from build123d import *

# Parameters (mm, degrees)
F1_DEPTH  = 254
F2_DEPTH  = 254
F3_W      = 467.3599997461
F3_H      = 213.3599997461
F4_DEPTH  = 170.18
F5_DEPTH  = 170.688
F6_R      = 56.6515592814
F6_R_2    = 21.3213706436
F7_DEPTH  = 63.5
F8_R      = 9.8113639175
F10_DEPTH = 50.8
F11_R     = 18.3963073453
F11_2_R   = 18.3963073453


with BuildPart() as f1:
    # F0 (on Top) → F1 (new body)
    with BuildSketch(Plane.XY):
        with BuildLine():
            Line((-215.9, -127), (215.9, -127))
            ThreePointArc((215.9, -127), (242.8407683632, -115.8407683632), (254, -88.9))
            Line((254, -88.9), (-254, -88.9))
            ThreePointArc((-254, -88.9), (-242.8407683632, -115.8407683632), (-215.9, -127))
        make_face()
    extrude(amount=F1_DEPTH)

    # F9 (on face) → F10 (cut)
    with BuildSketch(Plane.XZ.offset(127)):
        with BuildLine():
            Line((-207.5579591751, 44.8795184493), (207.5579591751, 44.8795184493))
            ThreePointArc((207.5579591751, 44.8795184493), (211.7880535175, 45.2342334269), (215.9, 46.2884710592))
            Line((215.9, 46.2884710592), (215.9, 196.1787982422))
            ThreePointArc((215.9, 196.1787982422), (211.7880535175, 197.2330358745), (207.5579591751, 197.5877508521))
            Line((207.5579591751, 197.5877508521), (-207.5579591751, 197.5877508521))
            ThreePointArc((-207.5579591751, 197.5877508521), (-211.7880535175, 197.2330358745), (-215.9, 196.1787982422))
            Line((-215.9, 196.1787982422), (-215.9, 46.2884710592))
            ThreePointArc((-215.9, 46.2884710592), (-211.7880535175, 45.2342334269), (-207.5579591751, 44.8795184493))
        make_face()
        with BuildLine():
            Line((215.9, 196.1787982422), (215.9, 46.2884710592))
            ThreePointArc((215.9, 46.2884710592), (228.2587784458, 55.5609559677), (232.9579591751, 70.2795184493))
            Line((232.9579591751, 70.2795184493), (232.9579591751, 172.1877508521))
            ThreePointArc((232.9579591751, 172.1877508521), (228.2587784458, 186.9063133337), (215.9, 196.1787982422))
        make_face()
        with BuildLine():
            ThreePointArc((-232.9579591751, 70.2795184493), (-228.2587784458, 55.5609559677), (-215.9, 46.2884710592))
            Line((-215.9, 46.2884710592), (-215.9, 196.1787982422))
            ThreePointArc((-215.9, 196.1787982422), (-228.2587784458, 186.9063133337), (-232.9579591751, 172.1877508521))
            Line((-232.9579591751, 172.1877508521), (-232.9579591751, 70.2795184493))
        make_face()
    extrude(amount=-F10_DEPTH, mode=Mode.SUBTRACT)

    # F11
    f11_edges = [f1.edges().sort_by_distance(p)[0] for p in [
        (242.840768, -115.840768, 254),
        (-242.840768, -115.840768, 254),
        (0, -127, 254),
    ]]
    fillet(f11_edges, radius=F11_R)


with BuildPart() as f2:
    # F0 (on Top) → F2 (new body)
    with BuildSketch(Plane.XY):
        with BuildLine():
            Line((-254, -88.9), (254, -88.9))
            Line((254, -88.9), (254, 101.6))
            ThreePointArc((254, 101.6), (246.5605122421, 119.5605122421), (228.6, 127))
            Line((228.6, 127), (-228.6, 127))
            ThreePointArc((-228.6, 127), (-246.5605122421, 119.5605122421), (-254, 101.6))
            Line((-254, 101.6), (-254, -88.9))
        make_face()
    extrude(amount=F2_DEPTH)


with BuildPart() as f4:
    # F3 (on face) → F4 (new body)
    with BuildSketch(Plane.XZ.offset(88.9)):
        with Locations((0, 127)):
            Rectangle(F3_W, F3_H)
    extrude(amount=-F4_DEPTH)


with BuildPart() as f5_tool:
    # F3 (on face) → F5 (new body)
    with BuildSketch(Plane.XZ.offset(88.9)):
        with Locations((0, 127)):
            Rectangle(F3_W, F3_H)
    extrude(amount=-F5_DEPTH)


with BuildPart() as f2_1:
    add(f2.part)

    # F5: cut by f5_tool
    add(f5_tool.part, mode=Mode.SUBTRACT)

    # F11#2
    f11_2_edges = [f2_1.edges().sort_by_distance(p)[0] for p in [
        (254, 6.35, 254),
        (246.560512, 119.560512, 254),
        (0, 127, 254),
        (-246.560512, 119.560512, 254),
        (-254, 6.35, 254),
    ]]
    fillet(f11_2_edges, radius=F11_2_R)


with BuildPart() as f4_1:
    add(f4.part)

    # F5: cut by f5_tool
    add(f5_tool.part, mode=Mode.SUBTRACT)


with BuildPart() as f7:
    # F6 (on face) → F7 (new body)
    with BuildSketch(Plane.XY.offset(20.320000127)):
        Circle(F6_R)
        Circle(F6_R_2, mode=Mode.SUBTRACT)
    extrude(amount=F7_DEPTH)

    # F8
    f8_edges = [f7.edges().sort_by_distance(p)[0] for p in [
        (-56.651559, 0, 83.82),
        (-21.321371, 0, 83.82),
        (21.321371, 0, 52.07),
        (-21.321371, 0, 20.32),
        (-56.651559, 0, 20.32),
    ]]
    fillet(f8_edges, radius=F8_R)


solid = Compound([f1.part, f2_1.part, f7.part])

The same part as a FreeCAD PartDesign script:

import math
import FreeCAD as App
import Part
import Sketcher
from FreeCAD import Vector
Q = App.Units.Quantity


def edges_at(feature, points):
    """Names of the edges that pass closest to the given points."""
    edges = feature.Shape.Edges
    near = lambda p: min(range(len(edges)), key=lambda i: edges[i].distToShape(Part.Vertex(*p))[0])
    return sorted({f"Edge{near(p) + 1}" for p in points})


def add_polygon(sketch, points):
    """Adds a closed chain of lines whose ends are joined by coincident constraints."""
    first, n = sketch.GeometryCount, len(points)
    for a, b in zip(points, points[1:] + points[:1]):
        sketch.addGeometry(Part.LineSegment(App.Vector(*a, 0), App.Vector(*b, 0)), False)
    for i in range(n):
        sketch.addConstraint(Sketcher.Constraint("Coincident", first + i, 2, first + (i + 1) % n, 1))

doc = App.newDocument("Part")
body = doc.addObject("PartDesign::Body", "Body")

# Sketch on XY plane
sketch1 = body.newObject("Sketcher::SketchObject", "Sketch")
sketch1.AttachmentSupport = (doc.getObject("XY_Plane"), [""])
sketch1.MapMode = "FlatFace"
sketch1.addGeometry([
    Part.LineSegment(Vector(-216, -127, 0), Vector(216, -127, 0)),
    Part.ArcOfCircle(Part.Circle(Vector(216, -89, 0), Vector(0, 0, 1), 38), math.radians(-90), math.radians(0)),
    Part.LineSegment(Vector(254, -89, 0), Vector(-254, -89, 0)),
    Part.ArcOfCircle(Part.Circle(Vector(-216, -89, 0), Vector(0, 0, 1), 38), math.radians(180), math.radians(270)),
], False)
sketch1.addConstraint([
    Sketcher.Constraint("Tangent", 0, 2, 1, 1),
    Sketcher.Constraint("Coincident", 1, 2, 2, 1),
    Sketcher.Constraint("Coincident", 2, 2, 3, 1),
    Sketcher.Constraint("Tangent", 3, 2, 0, 1),
    Sketcher.Constraint("Horizontal", 0),
    Sketcher.Constraint("Horizontal", 2),
    Sketcher.Constraint("Equal", 1, 3),
    Sketcher.Constraint("Horizontal", 3, 3, 1, 2),
    Sketcher.Constraint("Radius", 1, Q("1.5 in")),
    Sketcher.Constraint("DistanceX", 0, 1, 0, 2, Q("17 in")),
    Sketcher.Constraint("DistanceY", 0, 2, -1, 1, Q("5 in")),
    Sketcher.Constraint("DistanceX", -1, 1, 1, 2, Q("10 in")),
])
pad1 = body.newObject("PartDesign::Pad", "Pad")
pad1.Profile = sketch1
pad1.Length = Q("10 in")

# Sketch on XZ plane
sketch2 = body.newObject("Sketcher::SketchObject", "Sketch001")
sketch2.AttachmentSupport = (doc.getObject("XZ_Plane"), [""])
sketch2.MapMode = "FlatFace"
sketch2.AttachmentOffset = App.Placement(Vector(0, 0, 5 * 25.4), App.Rotation())
sketch2.addGeometry([
    Part.LineSegment(Vector(-208, 45, 0), Vector(208, 45, 0)),  # 0
    Part.ArcOfCircle(Part.Circle(Vector(208, 70, 0), Vector(0, 0, 1), 25), math.radians(-90), math.radians(-70.83)),  # 1
    Part.ArcOfCircle(Part.Circle(Vector(208, 70, 0), Vector(0, 0, 1), 25), math.radians(-71), math.radians(0)),  # 2
    Part.LineSegment(Vector(233, 70, 0), Vector(233, 172, 0)),  # 3
    Part.ArcOfCircle(Part.Circle(Vector(208, 172, 0), Vector(0, 0, 1), 25), math.radians(0), math.radians(71)),  # 4
    Part.ArcOfCircle(Part.Circle(Vector(208, 172, 0), Vector(0, 0, 1), 25), math.radians(70.83), math.radians(90)),  # 5
    Part.LineSegment(Vector(208, 198, 0), Vector(-208, 198, 0)),  # 6
    Part.ArcOfCircle(Part.Circle(Vector(-208, 172, 0), Vector(0, 0, 1), 25), math.radians(90), math.radians(109.17)),  # 7
    Part.ArcOfCircle(Part.Circle(Vector(-208, 172, 0), Vector(0, 0, 1), 25), math.radians(109), math.radians(180)),  # 8
    Part.LineSegment(Vector(-233, 172, 0), Vector(-233, 70, 0)),  # 9
    Part.ArcOfCircle(Part.Circle(Vector(-208, 70, 0), Vector(0, 0, 1), 25), math.radians(180), math.radians(251)),  # 10
    Part.ArcOfCircle(Part.Circle(Vector(-208, 70, 0), Vector(0, 0, 1), 25), math.radians(-109.17), math.radians(-90)),  # 11
], False)
sketch2.addConstraint([
    Sketcher.Constraint("Tangent", 0, 2, 1, 1),
    Sketcher.Constraint("Tangent", 1, 2, 2, 1),
    Sketcher.Constraint("Tangent", 2, 2, 3, 1),
    Sketcher.Constraint("Tangent", 3, 2, 4, 1),
    Sketcher.Constraint("Tangent", 4, 2, 5, 1),
    Sketcher.Constraint("Tangent", 5, 2, 6, 1),
    Sketcher.Constraint("Tangent", 6, 2, 7, 1),
    Sketcher.Constraint("Tangent", 7, 2, 8, 1),
    Sketcher.Constraint("Tangent", 8, 2, 9, 1),
    Sketcher.Constraint("Tangent", 9, 2, 10, 1),
    Sketcher.Constraint("Tangent", 10, 2, 11, 1),
    Sketcher.Constraint("Tangent", 11, 2, 0, 1),
    Sketcher.Constraint("Horizontal", 0),
    Sketcher.Constraint("Vertical", 3),
    Sketcher.Constraint("Horizontal", 6),
    Sketcher.Constraint("Vertical", 9),
    Sketcher.Constraint("Equal", 1, 2),
    Sketcher.Constraint("Equal", 2, 4),
    Sketcher.Constraint("Equal", 4, 5),
    Sketcher.Constraint("Equal", 5, 7),
    Sketcher.Constraint("Equal", 7, 8),
    Sketcher.Constraint("Equal", 8, 10),
    Sketcher.Constraint("Equal", 10, 11),
    Sketcher.Constraint("Symmetric", 4, 2, 7, 2, -2),
    Sketcher.Constraint("Horizontal", 1, 2, 10, 2),
    Sketcher.Constraint("Vertical", 1, 2, 4, 2),
    Sketcher.Constraint("Radius", 1, Q("1 in")),
    Sketcher.Constraint("DistanceX", -1, 1, 1, 2, Q("8.5 in")),
    Sketcher.Constraint("DistanceX", 0, 1, 0, 2, Q("415.115918 mm")),
    Sketcher.Constraint("DistanceY", -1, 1, 4, 2, Q("196.178798 mm")),
    Sketcher.Constraint("DistanceY", 3, 1, 3, 2, Q("101.908232 mm")),
])
pocket1 = body.newObject("PartDesign::Pocket", "Pocket")
pocket1.Profile = sketch2
pocket1.Length = Q("2 in")
doc.recompute()

fillet = body.newObject("PartDesign::Fillet", "Fillet")
fillet.Base = (pocket1, edges_at(pocket1, [(242.841, -115.841, 254), (-242.841, -115.841, 254), (0, -127, 254)]))
fillet.Radius = 18.396307
body2 = doc.addObject("PartDesign::Body", "Body001")

# Sketch on XY plane
sketch3 = body2.newObject("Sketcher::SketchObject", "Sketch002")
sketch3.AttachmentSupport = (doc.getObject("XY_Plane001"), [""])
sketch3.MapMode = "FlatFace"
sketch3.addGeometry([
    Part.LineSegment(Vector(-254, -89, 0), Vector(254, -89, 0)),  # 0
    Part.LineSegment(Vector(254, -89, 0), Vector(254, 102, 0)),  # 1
    Part.ArcOfCircle(Part.Circle(Vector(229, 102, 0), Vector(0, 0, 1), 25), math.radians(0), math.radians(90)),  # 2
    Part.LineSegment(Vector(229, 127, 0), Vector(-229, 127, 0)),  # 3
    Part.ArcOfCircle(Part.Circle(Vector(-229, 102, 0), Vector(0, 0, 1), 25), math.radians(90), math.radians(180)),  # 4
    Part.LineSegment(Vector(-254, 102, 0), Vector(-254, -89, 0)),  # 5
], False)
sketch3.addConstraint([
    Sketcher.Constraint("Coincident", 0, 2, 1, 1),
    Sketcher.Constraint("Tangent", 1, 2, 2, 1),
    Sketcher.Constraint("Tangent", 2, 2, 3, 1),
    Sketcher.Constraint("Tangent", 3, 2, 4, 1),
    Sketcher.Constraint("Tangent", 4, 2, 5, 1),
    Sketcher.Constraint("Coincident", 5, 2, 0, 1),
    Sketcher.Constraint("Horizontal", 0),
    Sketcher.Constraint("Vertical", 1),
    Sketcher.Constraint("Horizontal", 3),
    Sketcher.Constraint("Vertical", 5),
    Sketcher.Constraint("Equal", 2, 4),
    Sketcher.Constraint("Radius", 2, Q("1 in")),
    Sketcher.Constraint("DistanceX", 0, 1, 0, 2, Q("20 in")),
    Sketcher.Constraint("DistanceY", 1, 1, 1, 2, Q("7.5 in")),
    Sketcher.Constraint("DistanceX", -1, 1, 2, 3, Q("9 in")),
    Sketcher.Constraint("DistanceY", -1, 1, 2, 3, Q("4 in")),
])
pad2 = body2.newObject("PartDesign::Pad", "Pad001")
pad2.Profile = sketch3
pad2.Length = Q("10 in")
body3 = doc.addObject("PartDesign::Body", "Body002")

# Sketch on XZ plane
sketch4 = body3.newObject("Sketcher::SketchObject", "Sketch003")
sketch4.AttachmentSupport = (doc.getObject("XZ_Plane002"), [""])
sketch4.MapMode = "FlatFace"
sketch4.AttachmentOffset = App.Placement(Vector(0, 0, 3.5 * 25.4), App.Rotation())
add_polygon(sketch4, [(-234, 234), (-234, 20), (234, 20), (234, 234)])  # lines 0-3
sketch4.addConstraint([
    Sketcher.Constraint("Vertical", 0),
    Sketcher.Constraint("Horizontal", 1),
    Sketcher.Constraint("Vertical", 2),
    Sketcher.Constraint("Horizontal", 3),
    Sketcher.Constraint("DistanceX", 1, 1, 1, 2, Q("18.4 in")),
    Sketcher.Constraint("DistanceY", 0, 2, 0, 1, Q("8.4 in")),
    Sketcher.Constraint("DistanceX", 0, 2, -1, 1, Q("9.2 in")),
    Sketcher.Constraint("DistanceY", -1, 1, 0, 2, Q("0.8 in")),
])
pad3 = body3.newObject("PartDesign::Pad", "Pad002")
pad3.Profile = sketch4
pad3.Length = Q("6.7 in")
pad3.Reversed = True
body4 = doc.addObject("PartDesign::Body", "Body003")

# Sketch on XZ plane
sketch5 = body4.newObject("Sketcher::SketchObject", "Sketch004")
sketch5.AttachmentSupport = (doc.getObject("XZ_Plane003"), [""])
sketch5.MapMode = "FlatFace"
sketch5.AttachmentOffset = App.Placement(Vector(0, 0, 3.5 * 25.4), App.Rotation())
add_polygon(sketch5, [(-234, 234), (-234, 20), (234, 20), (234, 234)])  # lines 0-3
sketch5.addConstraint([
    Sketcher.Constraint("Vertical", 0),
    Sketcher.Constraint("Horizontal", 1),
    Sketcher.Constraint("Vertical", 2),
    Sketcher.Constraint("Horizontal", 3),
    Sketcher.Constraint("DistanceX", 1, 1, 1, 2, Q("18.4 in")),
    Sketcher.Constraint("DistanceY", 0, 2, 0, 1, Q("8.4 in")),
    Sketcher.Constraint("DistanceX", 0, 2, -1, 1, Q("9.2 in")),
    Sketcher.Constraint("DistanceY", -1, 1, 0, 2, Q("0.8 in")),
])
pad4 = body4.newObject("PartDesign::Pad", "Pad003")
pad4.Profile = sketch5
pad4.Length = Q("6.72 in")
pad4.Reversed = True
doc.recompute()

body5 = doc.addObject("PartDesign::Body", "Body004")
body5.BaseFeature = body4
boolean = body2.newObject("PartDesign::Boolean", "Boolean")
boolean.Type = "Cut"
boolean.addObjects([body5])
doc.recompute()

fillet2 = body2.newObject("PartDesign::Fillet", "Fillet001")
fillet2.Base = (boolean, edges_at(boolean, [
    (254, 6.35, 254),
    (246.561, 119.561, 254),
    (0, 127, 254),
    (-246.561, 119.561, 254),
    (-254, 6.35, 254),
]))
fillet2.Radius = 18.396307
doc.recompute()

boolean2 = body3.newObject("PartDesign::Boolean", "Boolean001")
boolean2.Type = "Cut"
boolean2.addObjects([body4])
body6 = doc.addObject("PartDesign::Body", "Body005")

# Sketch on XY plane
sketch6 = body6.newObject("Sketcher::SketchObject", "Sketch005")
sketch6.AttachmentSupport = (doc.getObject("XY_Plane005"), [""])
sketch6.MapMode = "FlatFace"
sketch6.AttachmentOffset = App.Placement(Vector(0, 0, 0.8 * 25.4), App.Rotation())
sketch6.addGeometry([
    Part.Circle(Vector(0, 0, 0), Vector(0, 0, 1), 57),
    Part.Circle(Vector(0, 0, 0), Vector(0, 0, 1), 21),
], False)
sketch6.addConstraint([
    Sketcher.Constraint("Coincident", 0, 3, -1, 1),
    Sketcher.Constraint("Coincident", 1, 3, -1, 1),
    Sketcher.Constraint("Diameter", 0, Q("113.303119 mm")),
    Sketcher.Constraint("Diameter", 1, Q("42.642741 mm")),
])
pad5 = body6.newObject("PartDesign::Pad", "Pad004")
pad5.Profile = sketch6
pad5.Length = Q("2.5 in")
doc.recompute()

fillet3 = body6.newObject("PartDesign::Fillet", "Fillet002")
fillet3.Base = (pad5, ["Edge1"])
fillet3.UseAllEdges = True
fillet3.Radius = 9.811364

doc.recompute()
